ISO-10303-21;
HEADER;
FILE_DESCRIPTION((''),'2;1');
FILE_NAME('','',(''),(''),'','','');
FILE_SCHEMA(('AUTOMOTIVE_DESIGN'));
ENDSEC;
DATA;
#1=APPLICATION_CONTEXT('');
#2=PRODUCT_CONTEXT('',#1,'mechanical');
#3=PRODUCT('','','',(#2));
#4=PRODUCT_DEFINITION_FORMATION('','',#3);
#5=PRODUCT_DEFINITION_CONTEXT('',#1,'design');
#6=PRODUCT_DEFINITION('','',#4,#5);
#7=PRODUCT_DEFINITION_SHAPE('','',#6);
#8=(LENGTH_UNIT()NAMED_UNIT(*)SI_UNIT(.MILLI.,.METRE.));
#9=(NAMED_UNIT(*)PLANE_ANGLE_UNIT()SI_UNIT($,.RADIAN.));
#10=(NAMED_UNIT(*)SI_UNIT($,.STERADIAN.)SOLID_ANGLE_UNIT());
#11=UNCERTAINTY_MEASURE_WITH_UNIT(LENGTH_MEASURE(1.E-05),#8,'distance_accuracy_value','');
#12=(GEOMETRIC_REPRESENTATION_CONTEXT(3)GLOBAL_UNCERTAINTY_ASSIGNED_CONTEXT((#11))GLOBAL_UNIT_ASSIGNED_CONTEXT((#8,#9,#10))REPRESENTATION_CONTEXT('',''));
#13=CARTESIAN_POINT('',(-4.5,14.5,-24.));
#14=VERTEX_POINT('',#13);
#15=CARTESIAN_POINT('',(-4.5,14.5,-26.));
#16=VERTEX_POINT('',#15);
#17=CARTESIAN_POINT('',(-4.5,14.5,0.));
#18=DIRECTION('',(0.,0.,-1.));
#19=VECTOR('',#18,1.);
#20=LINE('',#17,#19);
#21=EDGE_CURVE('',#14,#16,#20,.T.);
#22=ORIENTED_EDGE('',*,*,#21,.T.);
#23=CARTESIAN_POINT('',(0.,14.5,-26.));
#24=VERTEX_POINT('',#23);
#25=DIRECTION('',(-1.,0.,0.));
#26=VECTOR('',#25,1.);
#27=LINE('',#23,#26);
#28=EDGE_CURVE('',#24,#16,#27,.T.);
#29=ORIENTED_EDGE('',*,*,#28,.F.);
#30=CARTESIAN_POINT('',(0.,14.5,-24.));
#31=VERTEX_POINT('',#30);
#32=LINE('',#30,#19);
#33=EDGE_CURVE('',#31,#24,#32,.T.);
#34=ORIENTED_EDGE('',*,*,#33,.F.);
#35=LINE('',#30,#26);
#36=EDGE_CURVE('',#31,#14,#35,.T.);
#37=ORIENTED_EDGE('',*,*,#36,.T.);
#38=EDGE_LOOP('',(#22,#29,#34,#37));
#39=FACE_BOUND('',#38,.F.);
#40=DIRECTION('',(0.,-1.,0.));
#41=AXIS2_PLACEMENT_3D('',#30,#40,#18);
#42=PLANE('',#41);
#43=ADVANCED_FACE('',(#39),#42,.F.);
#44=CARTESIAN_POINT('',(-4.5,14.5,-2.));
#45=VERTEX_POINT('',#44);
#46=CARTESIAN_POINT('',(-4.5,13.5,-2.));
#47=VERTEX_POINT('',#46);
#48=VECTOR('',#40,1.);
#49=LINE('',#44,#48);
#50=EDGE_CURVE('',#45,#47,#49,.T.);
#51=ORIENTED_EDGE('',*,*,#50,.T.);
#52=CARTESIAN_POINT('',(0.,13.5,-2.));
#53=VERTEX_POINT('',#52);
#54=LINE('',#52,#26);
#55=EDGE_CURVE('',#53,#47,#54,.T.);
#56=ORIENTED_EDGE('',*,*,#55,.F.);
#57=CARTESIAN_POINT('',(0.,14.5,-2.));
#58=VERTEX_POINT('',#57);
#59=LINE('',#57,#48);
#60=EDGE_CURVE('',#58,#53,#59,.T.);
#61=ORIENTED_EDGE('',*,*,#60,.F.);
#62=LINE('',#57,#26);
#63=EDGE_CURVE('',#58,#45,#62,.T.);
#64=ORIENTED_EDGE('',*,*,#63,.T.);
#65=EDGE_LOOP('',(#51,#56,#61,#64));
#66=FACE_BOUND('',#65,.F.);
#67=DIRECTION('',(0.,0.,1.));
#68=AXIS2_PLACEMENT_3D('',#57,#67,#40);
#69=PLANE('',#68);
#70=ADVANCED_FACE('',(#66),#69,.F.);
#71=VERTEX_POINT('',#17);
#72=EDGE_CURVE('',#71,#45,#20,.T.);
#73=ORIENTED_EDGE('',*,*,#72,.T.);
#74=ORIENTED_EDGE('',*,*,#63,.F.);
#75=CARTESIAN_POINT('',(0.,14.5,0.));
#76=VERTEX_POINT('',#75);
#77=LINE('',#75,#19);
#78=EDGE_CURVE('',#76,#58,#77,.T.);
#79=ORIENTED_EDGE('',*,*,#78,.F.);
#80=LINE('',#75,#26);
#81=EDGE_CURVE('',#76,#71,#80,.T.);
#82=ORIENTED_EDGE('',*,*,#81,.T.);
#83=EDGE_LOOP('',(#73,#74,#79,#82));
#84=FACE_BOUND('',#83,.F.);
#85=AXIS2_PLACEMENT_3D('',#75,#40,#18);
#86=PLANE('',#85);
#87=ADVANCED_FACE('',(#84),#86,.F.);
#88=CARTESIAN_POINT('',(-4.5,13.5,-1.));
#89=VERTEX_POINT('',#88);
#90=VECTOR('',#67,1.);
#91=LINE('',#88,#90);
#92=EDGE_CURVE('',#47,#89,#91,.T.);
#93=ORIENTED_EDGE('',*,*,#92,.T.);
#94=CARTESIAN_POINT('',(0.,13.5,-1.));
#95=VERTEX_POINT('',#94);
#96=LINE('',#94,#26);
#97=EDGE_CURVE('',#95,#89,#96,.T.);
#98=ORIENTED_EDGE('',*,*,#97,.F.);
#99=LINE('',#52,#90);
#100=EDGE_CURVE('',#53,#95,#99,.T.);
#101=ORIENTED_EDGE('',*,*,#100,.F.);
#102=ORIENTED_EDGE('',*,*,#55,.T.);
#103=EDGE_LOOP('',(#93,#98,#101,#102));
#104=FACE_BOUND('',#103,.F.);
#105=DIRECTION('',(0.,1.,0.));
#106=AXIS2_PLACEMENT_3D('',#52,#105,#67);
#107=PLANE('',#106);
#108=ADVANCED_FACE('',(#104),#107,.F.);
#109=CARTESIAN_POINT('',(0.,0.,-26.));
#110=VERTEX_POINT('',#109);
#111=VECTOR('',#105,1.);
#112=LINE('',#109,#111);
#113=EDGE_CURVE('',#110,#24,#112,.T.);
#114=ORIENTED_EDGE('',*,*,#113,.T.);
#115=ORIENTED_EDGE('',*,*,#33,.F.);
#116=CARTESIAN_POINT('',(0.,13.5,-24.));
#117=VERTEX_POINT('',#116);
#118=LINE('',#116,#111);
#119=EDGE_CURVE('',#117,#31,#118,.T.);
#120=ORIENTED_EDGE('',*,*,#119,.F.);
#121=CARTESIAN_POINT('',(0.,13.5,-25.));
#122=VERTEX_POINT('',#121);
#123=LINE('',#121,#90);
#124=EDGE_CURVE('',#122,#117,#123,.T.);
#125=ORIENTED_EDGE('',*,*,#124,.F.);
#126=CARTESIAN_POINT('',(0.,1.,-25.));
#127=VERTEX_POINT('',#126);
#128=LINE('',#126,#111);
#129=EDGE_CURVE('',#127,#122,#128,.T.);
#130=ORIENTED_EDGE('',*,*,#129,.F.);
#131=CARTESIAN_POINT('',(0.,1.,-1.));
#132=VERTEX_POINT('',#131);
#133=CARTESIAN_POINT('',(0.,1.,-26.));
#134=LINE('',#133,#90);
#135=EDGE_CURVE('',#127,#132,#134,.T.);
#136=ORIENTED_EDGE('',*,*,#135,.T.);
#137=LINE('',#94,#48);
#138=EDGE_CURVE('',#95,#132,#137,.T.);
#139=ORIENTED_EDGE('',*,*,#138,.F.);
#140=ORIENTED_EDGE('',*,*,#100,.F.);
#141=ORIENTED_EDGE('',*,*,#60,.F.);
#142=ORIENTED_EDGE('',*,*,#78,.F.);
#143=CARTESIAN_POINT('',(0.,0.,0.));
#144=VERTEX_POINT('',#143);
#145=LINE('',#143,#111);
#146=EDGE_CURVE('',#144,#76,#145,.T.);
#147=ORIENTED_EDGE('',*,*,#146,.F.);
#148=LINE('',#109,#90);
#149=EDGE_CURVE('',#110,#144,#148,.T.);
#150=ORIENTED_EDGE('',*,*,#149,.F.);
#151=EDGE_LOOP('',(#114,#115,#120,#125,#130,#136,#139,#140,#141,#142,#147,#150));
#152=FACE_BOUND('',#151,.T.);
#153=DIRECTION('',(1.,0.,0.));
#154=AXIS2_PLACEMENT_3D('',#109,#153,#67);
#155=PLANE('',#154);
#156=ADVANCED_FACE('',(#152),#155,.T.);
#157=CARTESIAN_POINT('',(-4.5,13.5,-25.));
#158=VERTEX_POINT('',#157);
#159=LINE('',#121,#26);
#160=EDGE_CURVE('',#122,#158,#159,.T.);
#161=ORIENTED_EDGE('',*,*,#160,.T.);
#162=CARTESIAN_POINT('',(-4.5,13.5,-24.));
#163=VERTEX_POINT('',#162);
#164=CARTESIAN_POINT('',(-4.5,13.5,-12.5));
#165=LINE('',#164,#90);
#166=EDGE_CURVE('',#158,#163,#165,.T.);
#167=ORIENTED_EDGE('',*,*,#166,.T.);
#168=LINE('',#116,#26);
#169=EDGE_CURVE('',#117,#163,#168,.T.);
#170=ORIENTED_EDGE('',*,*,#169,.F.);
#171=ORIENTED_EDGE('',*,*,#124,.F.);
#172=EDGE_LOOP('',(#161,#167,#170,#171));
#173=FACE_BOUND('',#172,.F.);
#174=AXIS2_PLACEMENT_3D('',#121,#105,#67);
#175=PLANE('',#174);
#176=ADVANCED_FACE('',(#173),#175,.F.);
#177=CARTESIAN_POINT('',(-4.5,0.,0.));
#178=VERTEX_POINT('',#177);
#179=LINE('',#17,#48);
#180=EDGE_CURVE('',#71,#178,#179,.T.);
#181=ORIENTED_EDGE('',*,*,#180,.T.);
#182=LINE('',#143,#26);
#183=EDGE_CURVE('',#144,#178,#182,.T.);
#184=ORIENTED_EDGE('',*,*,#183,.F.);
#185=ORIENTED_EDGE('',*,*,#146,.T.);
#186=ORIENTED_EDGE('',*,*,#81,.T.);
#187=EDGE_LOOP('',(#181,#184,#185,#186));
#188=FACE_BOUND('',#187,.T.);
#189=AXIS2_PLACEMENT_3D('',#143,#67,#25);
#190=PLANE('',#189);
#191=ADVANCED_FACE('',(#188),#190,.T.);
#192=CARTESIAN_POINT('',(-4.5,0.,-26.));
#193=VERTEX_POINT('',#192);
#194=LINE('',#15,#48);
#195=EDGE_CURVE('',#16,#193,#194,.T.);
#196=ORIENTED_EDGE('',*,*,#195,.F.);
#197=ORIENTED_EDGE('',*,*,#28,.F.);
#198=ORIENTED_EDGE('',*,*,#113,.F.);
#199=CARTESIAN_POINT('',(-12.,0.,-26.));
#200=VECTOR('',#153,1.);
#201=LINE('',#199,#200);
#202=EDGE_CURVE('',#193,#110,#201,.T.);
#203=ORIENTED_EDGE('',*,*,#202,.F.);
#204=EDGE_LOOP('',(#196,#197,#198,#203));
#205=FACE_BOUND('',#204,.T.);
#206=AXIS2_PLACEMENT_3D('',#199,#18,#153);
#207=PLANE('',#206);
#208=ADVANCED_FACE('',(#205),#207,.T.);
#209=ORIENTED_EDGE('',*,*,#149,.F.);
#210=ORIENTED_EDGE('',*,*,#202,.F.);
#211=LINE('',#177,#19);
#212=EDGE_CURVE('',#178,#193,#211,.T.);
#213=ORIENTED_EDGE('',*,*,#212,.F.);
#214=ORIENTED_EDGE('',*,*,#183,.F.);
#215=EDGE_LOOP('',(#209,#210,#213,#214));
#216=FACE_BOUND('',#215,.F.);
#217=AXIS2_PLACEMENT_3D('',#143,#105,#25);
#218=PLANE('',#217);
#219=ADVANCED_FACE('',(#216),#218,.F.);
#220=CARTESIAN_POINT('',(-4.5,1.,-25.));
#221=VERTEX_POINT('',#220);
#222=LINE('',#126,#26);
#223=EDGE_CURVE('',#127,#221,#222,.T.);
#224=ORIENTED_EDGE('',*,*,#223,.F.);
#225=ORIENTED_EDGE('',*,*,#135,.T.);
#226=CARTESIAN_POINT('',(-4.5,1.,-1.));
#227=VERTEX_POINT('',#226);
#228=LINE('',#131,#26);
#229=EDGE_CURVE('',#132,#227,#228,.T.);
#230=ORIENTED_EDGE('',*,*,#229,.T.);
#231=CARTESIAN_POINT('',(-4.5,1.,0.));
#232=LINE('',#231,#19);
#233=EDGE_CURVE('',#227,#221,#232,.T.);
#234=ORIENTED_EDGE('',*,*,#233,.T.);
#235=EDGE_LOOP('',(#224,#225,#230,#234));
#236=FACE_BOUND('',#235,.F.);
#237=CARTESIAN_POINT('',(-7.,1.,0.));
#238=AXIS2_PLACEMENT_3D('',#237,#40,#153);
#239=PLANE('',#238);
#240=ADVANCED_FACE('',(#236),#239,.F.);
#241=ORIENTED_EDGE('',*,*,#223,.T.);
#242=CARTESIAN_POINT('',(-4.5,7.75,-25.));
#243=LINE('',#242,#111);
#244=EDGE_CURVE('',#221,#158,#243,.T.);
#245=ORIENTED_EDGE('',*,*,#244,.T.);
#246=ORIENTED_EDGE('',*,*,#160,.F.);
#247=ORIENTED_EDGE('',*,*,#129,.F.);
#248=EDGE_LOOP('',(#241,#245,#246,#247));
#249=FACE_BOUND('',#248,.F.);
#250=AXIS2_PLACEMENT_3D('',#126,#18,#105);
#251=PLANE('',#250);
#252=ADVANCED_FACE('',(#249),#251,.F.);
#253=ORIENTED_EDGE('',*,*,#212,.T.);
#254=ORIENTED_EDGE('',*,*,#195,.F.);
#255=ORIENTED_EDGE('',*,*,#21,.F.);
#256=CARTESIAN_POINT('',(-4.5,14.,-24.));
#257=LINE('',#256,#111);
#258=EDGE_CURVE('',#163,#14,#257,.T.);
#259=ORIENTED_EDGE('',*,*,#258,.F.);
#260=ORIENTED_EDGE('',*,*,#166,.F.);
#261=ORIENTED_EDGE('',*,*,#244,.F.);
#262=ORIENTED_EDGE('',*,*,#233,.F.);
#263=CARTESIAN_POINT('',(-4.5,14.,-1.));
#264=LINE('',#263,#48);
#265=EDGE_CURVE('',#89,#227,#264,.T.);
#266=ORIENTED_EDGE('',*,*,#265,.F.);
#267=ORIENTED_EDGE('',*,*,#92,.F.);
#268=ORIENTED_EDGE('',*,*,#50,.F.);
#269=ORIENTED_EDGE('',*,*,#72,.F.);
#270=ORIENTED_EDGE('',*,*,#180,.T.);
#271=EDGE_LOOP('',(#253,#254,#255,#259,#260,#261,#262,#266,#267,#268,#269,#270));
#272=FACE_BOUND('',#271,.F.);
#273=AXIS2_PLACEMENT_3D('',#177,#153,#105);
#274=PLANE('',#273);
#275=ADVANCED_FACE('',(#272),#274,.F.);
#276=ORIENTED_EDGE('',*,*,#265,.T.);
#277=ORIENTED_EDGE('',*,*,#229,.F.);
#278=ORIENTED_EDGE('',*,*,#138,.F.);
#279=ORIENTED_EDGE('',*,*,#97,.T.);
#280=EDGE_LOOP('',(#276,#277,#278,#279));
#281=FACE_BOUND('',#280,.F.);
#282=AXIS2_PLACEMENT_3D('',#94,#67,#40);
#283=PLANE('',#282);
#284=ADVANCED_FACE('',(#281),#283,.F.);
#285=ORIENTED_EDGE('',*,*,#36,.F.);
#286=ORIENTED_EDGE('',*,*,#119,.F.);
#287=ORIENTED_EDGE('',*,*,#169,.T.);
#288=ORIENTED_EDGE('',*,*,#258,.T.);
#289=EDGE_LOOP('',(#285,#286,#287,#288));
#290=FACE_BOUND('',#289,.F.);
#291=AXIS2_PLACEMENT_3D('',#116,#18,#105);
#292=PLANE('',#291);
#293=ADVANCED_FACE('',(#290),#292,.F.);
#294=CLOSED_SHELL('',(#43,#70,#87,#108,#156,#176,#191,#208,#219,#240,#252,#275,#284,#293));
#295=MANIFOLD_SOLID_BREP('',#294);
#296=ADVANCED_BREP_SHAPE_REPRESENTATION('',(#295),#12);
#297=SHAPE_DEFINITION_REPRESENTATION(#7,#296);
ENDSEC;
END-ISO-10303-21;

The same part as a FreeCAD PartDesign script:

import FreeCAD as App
import Part
import Sketcher
from FreeCAD import Vector
Q = App.Units.Quantity


def add_polygon(sketch, points):
    """Adds a closed chain of lines whose ends are joined by coincident constraints."""
    first, n = sketch.GeometryCount, len(points)
    for a, b in zip(points, points[1:] + points[:1]):
        sketch.addGeometry(Part.LineSegment(App.Vector(*a, 0), App.Vector(*b, 0)), False)
    for i in range(n):
        sketch.addConstraint(Sketcher.Constraint("Coincident", first + i, 2, first + (i + 1) % n, 1))

doc = App.newDocument("Part")
body = doc.addObject("PartDesign::Body", "Body")

sketch1 = doc.addObject("Sketcher::SketchObject", "Sketch")
body.addObject(sketch1)
sketch1.AttachmentSupport = (doc.XZ_Plane, [""])
sketch1.MapMode = "FlatFace"
add_polygon(sketch1, [(-12, 0), (0, 0), (0, -26), (-12, -26)])
sketch1.addConstraint(Sketcher.Constraint("Horizontal", 0))
sketch1.addConstraint(Sketcher.Constraint("Vertical", 1))
sketch1.addConstraint(Sketcher.Constraint("Horizontal", 2))
sketch1.addConstraint(Sketcher.Constraint("Vertical", 3))
sketch1.addConstraint(Sketcher.Constraint("Coincident", 0, 2, -1, 1))
sketch1.addConstraint(Sketcher.Constraint("DistanceX", 0, 1, 0, 2, Q("12 mm")))
sketch1.addConstraint(Sketcher.Constraint("DistanceY", 1, 2, 1, 1, Q("26 mm")))
pad1 = doc.addObject("PartDesign::Pad", "Pad")
body.addObject(pad1)
pad1.Profile = sketch1
pad1.Length = 1
pad1.Reversed = True

sketch2 = doc.addObject("Sketcher::SketchObject", "Sketch001")
body.addObject(sketch2)
sketch2.AttachmentSupport = (doc.YZ_Plane, [""])
sketch2.MapMode = "FlatFace"
add_polygon(sketch2, [(1, 0), (1, -1), (13.5, -1), (13.5, -2), (14.5, -2), (14.5, 0)])
add_polygon(sketch2, [(1, -25), (1, -26), (14.5, -26), (14.5, -24), (13.5, -24), (13.5, -25)])
sketch2.addConstraint(Sketcher.Constraint("Vertical", 0))
sketch2.addConstraint(Sketcher.Constraint("Horizontal", 1))
sketch2.addConstraint(Sketcher.Constraint("Vertical", 2))
sketch2.addConstraint(Sketcher.Constraint("Horizontal", 3))
sketch2.addConstraint(Sketcher.Constraint("Vertical", 4))
sketch2.addConstraint(Sketcher.Constraint("Horizontal", 5))
sketch2.addConstraint(Sketcher.Constraint("Vertical", 6))
sketch2.addConstraint(Sketcher.Constraint("Horizontal", 7))
sketch2.addConstraint(Sketcher.Constraint("Vertical", 8))
sketch2.addConstraint(Sketcher.Constraint("Horizontal", 9))
sketch2.addConstraint(Sketcher.Constraint("Vertical", 10))
sketch2.addConstraint(Sketcher.Constraint("Horizontal", 11))
sketch2.addConstraint(Sketcher.Constraint("PointOnObject", 4, 2, -1))
sketch2.addConstraint(Sketcher.Constraint("Vertical", 5, 2, 6, 2))
sketch2.addConstraint(Sketcher.Constraint("Vertical", 4, 2, 7, 2))
sketch2.addConstraint(Sketcher.Constraint("Vertical", 2, 2, 9, 2))
sketch2.addConstraint(Sketcher.Constraint("Equal", 9, 0))
sketch2.addConstraint(Sketcher.Constraint("Equal", 0, 2))
sketch2.addConstraint(Sketcher.Constraint("Equal", 2, 6))
sketch2.addConstraint(Sketcher.Constraint("Equal", 4, 8))
sketch2.addConstraint(Sketcher.Constraint("DistanceX", 3, 1, 3, 2, Q("1 mm")))
sketch2.addConstraint(Sketcher.Constraint("DistanceX", 5, 2, 5, 1, Q("13.5 mm")))
sketch2.addConstraint(Sketcher.Constraint("DistanceX", -1, 1, 0, 2, Q("1 mm")))
sketch2.addConstraint(Sketcher.Constraint("DistanceY", 8, 2, -1, 1, Q("24 mm")))
pad2 = doc.addObject("PartDesign::Pad", "Pad001")
body.addObject(pad2)
pad2.Profile = sketch2
pad2.Length = 12
pad2.Reversed = True

sketch3 = doc.addObject("Sketcher::SketchObject", "Sketch002")
body.addObject(sketch3)
sketch3.AttachmentSupport = (doc.XY_Plane, [""])
sketch3.MapMode = "FlatFace"
add_polygon(sketch3, [(-4.5, 14.5), (-7, 14.5), (-7, 1), (-4.5, 1)])
add_polygon(sketch3, [(-12, 1), (-12, 0), (-8, 0), (-8, 1)])
sketch3.addConstraint(Sketcher.Constraint("Horizontal", 0))
sketch3.addConstraint(Sketcher.Constraint("Vertical", 1))
sketch3.addConstraint(Sketcher.Constraint("Horizontal", 2))
sketch3.addConstraint(Sketcher.Constraint("Vertical", 3))
sketch3.addConstraint(Sketcher.Constraint("Vertical", 4))
sketch3.addConstraint(Sketcher.Constraint("Horizontal", 5))
sketch3.addConstraint(Sketcher.Constraint("Vertical", 6))
sketch3.addConstraint(Sketcher.Constraint("Horizontal", 7))
sketch3.addConstraint(Sketcher.Constraint("PointOnObject", 4, 2, -1))
sketch3.addConstraint(Sketcher.Constraint("Horizontal", 2, 2, 6, 2))
sketch3.addConstraint(Sketcher.Constraint("DistanceX", 5, 1, 5, 2, Q("4 mm")))
sketch3.addConstraint(Sketcher.Constraint("DistanceY", 4, 2, 4, 1, Q("1 mm")))
sketch3.addConstraint(Sketcher.Constraint("DistanceX", 0, 2, 0, 1, Q("2.5 mm")))
sketch3.addConstraint(Sketcher.Constraint("DistanceY", 1, 2, 1, 1, Q("13.5 mm")))
sketch3.addConstraint(Sketcher.Constraint("DistanceX", 5, 2, 1, 2, Q("1 mm")))
sketch3.addConstraint(Sketcher.Constraint("DistanceX", 2, 2, -1, 1, Q("4.5 mm")))
pocket1 = doc.addObject("PartDesign::Pocket", "Pocket")
body.addObject(pocket1)
pocket1.Profile = sketch3
pocket1.Length = 26.5

sketch4 = doc.addObject("Sketcher::SketchObject", "Sketch003")
body.addObject(sketch4)
sketch4.AttachmentSupport = (doc.XY_Plane, [""])
sketch4.MapMode = "FlatFace"
add_polygon(sketch4, [(-4, 0), (-4, 14), (-17, 14), (-17, 0)])
sketch4.addConstraint(Sketcher.Constraint("Vertical", 0))
sketch4.addConstraint(Sketcher.Constraint("Horizontal", 1))
sketch4.addConstraint(Sketcher.Constraint("Vertical", 2))
sketch4.addConstraint(Sketcher.Constraint("Horizontal", 3))
sketch4.addConstraint(Sketcher.Constraint("PointOnObject", 2, 2, -1))
sketch4.addConstraint(Sketcher.Constraint("DistanceY", 0, 1, 0, 2, Q("14.5 mm")))
sketch4.addConstraint(Sketcher.Constraint("DistanceX", 0, 2, -1, 1, Q("4.5 mm")))
sketch4.addConstraint(Sketcher.Constraint("DistanceX", 1, 2, 1, 1, Q("12.2717 mm")))
pocket2 = doc.addObject("PartDesign::Pocket", "Pocket001")
body.addObject(pocket2)
pocket2.Profile = sketch4
pocket2.Length = 26.5

doc.recompute()
